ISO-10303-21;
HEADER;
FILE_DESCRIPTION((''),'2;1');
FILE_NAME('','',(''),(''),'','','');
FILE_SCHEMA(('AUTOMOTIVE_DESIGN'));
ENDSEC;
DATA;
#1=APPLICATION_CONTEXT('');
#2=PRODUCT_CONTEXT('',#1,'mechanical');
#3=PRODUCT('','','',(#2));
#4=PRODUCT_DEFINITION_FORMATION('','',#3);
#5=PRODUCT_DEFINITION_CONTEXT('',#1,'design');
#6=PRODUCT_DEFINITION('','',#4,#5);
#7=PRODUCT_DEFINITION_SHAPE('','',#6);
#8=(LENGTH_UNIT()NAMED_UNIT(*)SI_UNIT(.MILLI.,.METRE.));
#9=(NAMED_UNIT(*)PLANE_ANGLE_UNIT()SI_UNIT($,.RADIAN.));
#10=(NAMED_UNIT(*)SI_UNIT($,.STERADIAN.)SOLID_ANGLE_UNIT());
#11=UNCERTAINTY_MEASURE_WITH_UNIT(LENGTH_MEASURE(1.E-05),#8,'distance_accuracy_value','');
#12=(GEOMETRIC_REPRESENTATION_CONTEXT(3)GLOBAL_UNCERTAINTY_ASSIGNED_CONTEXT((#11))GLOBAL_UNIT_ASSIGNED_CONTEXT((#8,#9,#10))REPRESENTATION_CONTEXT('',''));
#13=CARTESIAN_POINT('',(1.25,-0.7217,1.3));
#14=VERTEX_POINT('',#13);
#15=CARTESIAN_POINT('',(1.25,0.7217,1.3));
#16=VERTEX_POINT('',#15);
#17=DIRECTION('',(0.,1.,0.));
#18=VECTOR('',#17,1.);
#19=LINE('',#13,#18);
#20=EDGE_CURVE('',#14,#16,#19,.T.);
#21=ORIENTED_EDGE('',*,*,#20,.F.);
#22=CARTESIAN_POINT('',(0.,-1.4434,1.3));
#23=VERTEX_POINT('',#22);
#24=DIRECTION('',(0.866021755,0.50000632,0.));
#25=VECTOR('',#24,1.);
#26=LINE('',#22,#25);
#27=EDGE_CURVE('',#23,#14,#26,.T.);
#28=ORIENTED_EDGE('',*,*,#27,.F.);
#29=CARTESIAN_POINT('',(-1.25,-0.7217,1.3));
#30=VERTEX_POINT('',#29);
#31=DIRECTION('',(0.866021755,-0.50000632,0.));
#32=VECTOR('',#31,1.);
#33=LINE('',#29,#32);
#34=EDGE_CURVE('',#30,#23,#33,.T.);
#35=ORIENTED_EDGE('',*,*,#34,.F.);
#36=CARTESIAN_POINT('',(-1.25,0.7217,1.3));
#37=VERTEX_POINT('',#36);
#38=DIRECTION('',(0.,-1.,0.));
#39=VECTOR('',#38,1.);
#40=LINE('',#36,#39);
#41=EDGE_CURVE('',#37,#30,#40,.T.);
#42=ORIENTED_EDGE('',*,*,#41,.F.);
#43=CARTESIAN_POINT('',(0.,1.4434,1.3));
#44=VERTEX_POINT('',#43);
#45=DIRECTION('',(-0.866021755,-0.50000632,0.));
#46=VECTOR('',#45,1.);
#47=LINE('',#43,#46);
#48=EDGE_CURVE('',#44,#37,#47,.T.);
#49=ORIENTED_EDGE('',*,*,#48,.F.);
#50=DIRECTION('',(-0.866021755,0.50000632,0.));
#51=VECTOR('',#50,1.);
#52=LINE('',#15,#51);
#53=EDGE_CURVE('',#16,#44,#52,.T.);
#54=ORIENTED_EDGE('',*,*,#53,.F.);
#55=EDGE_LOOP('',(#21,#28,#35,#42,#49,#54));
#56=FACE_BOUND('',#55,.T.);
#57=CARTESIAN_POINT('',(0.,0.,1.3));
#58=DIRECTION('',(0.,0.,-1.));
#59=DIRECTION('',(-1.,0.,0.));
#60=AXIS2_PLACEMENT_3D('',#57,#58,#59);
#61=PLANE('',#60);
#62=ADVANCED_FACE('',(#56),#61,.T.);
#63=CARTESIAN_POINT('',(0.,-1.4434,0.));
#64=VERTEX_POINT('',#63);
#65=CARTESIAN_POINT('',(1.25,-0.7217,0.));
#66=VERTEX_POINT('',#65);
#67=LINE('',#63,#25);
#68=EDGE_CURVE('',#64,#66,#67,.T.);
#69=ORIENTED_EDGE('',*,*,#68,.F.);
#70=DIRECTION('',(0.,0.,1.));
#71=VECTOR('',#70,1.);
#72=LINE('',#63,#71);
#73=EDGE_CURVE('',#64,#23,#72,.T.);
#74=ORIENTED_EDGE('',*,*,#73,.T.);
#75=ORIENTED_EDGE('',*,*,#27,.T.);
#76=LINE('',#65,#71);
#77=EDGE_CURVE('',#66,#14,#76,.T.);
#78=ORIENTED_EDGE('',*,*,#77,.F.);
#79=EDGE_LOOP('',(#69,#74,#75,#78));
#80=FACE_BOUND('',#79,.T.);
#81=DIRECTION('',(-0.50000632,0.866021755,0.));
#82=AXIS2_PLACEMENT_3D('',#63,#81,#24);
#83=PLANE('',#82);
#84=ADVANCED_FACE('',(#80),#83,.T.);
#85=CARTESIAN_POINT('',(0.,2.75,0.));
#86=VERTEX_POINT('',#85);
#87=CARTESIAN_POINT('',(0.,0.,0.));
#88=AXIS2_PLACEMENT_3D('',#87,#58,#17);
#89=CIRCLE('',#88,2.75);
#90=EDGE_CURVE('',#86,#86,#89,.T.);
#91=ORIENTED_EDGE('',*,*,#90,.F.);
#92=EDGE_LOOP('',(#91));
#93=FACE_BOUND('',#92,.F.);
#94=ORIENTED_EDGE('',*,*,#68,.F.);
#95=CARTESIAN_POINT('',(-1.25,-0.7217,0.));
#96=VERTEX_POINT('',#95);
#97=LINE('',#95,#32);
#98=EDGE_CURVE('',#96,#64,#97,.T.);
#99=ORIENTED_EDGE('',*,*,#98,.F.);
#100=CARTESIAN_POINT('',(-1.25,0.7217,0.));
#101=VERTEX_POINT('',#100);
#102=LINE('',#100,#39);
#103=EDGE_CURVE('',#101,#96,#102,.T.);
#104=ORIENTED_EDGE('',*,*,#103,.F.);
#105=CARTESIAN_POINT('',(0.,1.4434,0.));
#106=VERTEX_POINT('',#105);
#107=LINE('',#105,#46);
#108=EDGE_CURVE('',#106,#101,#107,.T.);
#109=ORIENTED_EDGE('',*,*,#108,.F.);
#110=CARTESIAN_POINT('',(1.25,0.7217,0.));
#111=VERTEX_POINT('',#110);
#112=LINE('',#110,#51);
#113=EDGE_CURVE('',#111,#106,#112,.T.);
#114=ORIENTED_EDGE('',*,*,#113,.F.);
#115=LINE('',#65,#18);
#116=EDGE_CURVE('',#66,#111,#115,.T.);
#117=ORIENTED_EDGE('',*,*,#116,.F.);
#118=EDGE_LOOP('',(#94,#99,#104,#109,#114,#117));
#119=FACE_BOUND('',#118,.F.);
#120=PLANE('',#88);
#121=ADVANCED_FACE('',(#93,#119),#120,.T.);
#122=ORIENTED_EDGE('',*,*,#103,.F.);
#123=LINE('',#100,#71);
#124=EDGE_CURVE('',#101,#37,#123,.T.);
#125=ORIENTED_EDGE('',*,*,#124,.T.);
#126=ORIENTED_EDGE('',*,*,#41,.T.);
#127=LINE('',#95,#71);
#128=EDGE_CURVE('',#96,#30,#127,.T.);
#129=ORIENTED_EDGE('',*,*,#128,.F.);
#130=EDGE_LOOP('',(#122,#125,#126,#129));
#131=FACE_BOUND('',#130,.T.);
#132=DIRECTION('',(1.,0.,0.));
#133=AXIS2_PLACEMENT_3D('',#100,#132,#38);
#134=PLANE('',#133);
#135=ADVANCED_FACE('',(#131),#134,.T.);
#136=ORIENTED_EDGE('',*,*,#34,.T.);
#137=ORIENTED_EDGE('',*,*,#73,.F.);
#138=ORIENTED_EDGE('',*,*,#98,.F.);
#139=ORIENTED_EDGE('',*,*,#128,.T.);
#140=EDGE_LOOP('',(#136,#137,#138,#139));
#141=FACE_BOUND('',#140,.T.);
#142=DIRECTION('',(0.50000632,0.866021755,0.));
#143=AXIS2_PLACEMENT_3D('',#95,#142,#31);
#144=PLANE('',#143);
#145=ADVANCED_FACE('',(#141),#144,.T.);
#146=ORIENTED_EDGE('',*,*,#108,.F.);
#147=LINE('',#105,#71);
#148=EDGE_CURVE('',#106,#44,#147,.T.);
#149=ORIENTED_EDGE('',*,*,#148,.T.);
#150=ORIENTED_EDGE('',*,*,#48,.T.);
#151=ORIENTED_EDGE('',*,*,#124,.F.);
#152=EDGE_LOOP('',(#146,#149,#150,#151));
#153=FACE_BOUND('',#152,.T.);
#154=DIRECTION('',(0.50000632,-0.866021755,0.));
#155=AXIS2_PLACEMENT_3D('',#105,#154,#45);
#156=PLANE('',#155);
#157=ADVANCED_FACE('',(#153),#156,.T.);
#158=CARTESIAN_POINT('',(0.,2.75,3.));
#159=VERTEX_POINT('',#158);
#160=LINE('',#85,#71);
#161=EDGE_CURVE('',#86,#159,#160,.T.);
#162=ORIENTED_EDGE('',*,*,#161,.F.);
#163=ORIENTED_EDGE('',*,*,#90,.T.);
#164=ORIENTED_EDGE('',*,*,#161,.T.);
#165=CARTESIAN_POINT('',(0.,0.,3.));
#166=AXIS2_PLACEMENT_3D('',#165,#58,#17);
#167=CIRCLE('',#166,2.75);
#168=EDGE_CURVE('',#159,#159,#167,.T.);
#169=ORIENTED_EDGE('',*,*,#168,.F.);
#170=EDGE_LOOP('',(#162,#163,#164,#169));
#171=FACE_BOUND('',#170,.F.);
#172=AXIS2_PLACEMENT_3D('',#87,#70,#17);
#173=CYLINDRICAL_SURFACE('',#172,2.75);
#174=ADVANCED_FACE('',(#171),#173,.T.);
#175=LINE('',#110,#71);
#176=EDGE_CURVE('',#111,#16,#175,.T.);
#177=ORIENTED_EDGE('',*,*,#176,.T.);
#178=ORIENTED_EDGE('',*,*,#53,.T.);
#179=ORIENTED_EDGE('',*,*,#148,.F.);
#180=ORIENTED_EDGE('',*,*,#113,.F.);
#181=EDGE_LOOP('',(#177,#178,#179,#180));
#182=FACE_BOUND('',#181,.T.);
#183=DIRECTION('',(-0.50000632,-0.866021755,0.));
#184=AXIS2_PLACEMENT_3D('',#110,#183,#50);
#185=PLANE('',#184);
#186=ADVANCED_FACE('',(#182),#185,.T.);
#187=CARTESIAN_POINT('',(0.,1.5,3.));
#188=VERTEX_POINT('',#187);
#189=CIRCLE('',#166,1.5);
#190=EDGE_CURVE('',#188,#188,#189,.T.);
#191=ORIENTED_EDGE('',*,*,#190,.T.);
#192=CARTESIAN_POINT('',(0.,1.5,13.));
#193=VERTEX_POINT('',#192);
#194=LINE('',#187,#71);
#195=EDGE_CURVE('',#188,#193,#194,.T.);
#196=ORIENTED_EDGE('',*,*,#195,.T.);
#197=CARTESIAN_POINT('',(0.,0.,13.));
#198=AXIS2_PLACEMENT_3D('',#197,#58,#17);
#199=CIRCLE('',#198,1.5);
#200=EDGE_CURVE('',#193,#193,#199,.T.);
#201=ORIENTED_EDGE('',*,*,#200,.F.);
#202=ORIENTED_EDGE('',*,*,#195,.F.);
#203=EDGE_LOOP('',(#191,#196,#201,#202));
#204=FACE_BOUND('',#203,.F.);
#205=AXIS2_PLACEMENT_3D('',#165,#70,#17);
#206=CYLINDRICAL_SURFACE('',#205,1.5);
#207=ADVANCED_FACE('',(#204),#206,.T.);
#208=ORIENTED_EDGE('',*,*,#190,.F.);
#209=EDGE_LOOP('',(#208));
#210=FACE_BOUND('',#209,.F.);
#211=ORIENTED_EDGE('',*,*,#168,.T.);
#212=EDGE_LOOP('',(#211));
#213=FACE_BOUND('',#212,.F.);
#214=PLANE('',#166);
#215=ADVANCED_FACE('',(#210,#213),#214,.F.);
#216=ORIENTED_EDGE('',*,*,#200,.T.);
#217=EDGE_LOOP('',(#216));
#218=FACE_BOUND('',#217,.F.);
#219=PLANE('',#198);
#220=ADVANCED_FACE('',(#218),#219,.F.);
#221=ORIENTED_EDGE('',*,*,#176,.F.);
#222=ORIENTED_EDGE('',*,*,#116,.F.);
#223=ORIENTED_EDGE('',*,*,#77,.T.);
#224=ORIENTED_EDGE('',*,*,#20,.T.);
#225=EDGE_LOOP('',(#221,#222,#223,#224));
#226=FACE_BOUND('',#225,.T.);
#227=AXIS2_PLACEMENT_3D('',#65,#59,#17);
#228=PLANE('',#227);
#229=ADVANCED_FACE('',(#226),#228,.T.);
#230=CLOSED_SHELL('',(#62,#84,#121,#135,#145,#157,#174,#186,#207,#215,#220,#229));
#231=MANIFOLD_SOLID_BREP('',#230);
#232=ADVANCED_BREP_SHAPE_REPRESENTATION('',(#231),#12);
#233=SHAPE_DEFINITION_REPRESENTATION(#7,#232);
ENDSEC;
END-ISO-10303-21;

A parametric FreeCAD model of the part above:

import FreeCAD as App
import Part
import Sketcher
from FreeCAD import Vector
Q = App.Units.Quantity


def add_polygon(sketch, points):
    """Adds a closed chain of lines whose ends are joined by coincident constraints."""
    first, n = sketch.GeometryCount, len(points)
    for a, b in zip(points, points[1:] + points[:1]):
        sketch.addGeometry(Part.LineSegment(App.Vector(*a, 0), App.Vector(*b, 0)), False)
    for i in range(n):
        sketch.addConstraint(Sketcher.Constraint("Coincident", first + i, 2, first + (i + 1) % n, 1))

doc = App.newDocument("Part")
body = doc.addObject("PartDesign::Body", "Body")

# Sketch on YZ plane
sketch1 = body.newObject("Sketcher::SketchObject", "Sketch")
sketch1.AttachmentSupport = (doc.getObject("YZ_Plane"), [""])
sketch1.MapMode = "FlatFace"
add_polygon(sketch1, [(1.5, 13), (0, 13), (0, 0), (2.8, 0), (2.8, 3), (1.5, 3)])  # lines 0-5
sketch1.addConstraint([
    Sketcher.Constraint("Horizontal", 0),
    Sketcher.Constraint("Vertical", 1),
    Sketcher.Constraint("Horizontal", 2),
    Sketcher.Constraint("Vertical", 3),
    Sketcher.Constraint("Horizontal", 4),
    Sketcher.Constraint("Vertical", 5),
    Sketcher.Constraint("Coincident", 1, 2, -1, 1),
    Sketcher.Constraint("DistanceY", 3, 1, 3, 2, Q("3 mm")),
    Sketcher.Constraint("DistanceY", 5, 1, 5, 2, Q("10 mm")),
    Sketcher.Constraint("DistanceX", 0, 2, 0, 1, Q("1.5 mm")),
    Sketcher.Constraint("DistanceX", 2, 1, 2, 2, Q("2.75 mm")),
])
revolution = body.newObject("PartDesign::Revolution", "Revolution")
revolution.Profile = sketch1
revolution.ReferenceAxis = (sketch1, ["V_Axis"])
revolution.Angle = 360

# Sketch on XY plane
sketch2 = body.newObject("Sketcher::SketchObject", "Sketch001")
sketch2.AttachmentSupport = (doc.getObject("XY_Plane"), [""])
sketch2.MapMode = "FlatFace"
add_polygon(sketch2, [(-1.2, 0.7), (0, 1.4), (1.2, 0.7), (1.2, -0.7), (0, -1.4), (-1.2, -0.7)])  # lines 0-5
sketch2.addConstraint([
    Sketcher.Constraint("Vertical", 2),
    Sketcher.Constraint("Vertical", 5),
    Sketcher.Constraint("Symmetric", 0, 2, 3, 2, -1, 1),
    Sketcher.Constraint("Symmetric", 1, 2, 4, 2, -1, 1),
    Sketcher.Constraint("PointOnObject", 0, 2, -2),
    Sketcher.Constraint("Parallel", 0, 3),
    Sketcher.Constraint("Horizontal", 2, 2, 4, 2),
    Sketcher.Constraint("DistanceX", 4, 2, 2, 2, Q("2.5 mm")),
    Sketcher.Constraint("Angle", 0, Q("30.0004 deg")),
    Sketcher.Constraint("DistanceY", 2, 2, 2, 1, Q("1.4434 mm")),
])
pocket1 = body.newObject("PartDesign::Pocket", "Pocket")
pocket1.Profile = sketch2
pocket1.Length = 1.3
pocket1.Reversed = True

doc.recompute()
